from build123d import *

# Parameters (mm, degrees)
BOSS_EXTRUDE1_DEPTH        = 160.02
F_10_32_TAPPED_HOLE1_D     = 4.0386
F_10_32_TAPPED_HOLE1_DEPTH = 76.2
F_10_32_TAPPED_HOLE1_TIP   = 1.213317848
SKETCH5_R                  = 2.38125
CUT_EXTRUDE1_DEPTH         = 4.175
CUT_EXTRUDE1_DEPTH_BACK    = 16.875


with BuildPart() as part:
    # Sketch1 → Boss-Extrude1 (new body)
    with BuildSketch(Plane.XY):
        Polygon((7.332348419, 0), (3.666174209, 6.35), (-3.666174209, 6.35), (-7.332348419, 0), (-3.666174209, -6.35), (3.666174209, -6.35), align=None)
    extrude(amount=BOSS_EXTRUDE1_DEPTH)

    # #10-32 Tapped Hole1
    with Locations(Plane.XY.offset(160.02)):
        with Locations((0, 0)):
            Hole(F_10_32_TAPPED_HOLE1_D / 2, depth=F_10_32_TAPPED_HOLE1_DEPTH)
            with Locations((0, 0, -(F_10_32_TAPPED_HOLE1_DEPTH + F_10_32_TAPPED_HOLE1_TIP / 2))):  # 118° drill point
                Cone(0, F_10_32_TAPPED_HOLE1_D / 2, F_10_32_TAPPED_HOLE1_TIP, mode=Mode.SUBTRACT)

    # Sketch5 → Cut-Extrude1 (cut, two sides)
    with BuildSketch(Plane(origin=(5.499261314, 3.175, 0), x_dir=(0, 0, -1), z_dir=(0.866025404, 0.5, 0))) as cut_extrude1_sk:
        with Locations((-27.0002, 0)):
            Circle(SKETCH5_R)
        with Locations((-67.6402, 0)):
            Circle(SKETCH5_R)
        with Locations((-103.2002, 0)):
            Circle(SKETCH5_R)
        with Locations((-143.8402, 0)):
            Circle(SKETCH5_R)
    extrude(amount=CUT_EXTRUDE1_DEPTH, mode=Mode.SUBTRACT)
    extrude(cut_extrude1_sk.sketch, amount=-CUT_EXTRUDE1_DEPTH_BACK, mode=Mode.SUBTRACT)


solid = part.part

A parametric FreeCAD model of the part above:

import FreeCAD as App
import Part
import Sketcher
from FreeCAD import Vector
Q = App.Units.Quantity

doc = App.newDocument("Part")
body = doc.addObject("PartDesign::Body", "Body")

sketch1 = body.newObject("Sketcher::SketchObject", "Sketch")
sketch1.AttachmentSupport = (doc.getObject("XY_Plane"), [""])
sketch1.MapMode = "FlatFace"
sketch1.addGeometry([
    Part.LineSegment(Vector(7, 0, 0), Vector(4, 6, 0)),
    Part.LineSegment(Vector(4, 6, 0), Vector(-4, 6, 0)),
    Part.LineSegment(Vector(-4, 6, 0), Vector(-7, 0, 0)),
    Part.LineSegment(Vector(-7, 0, 0), Vector(-4, -6, 0)),
    Part.LineSegment(Vector(-4, -6, 0), Vector(4, -6, 0)),
    Part.LineSegment(Vector(4, -6, 0), Vector(7, 0, 0)),
], False)
sketch1.addConstraint([
    Sketcher.Constraint("Coincident", 0, 2, 1, 1),
    Sketcher.Constraint("Coincident", 1, 2, 2, 1),
    Sketcher.Constraint("Coincident", 2, 2, 3, 1),
    Sketcher.Constraint("Coincident", 3, 2, 4, 1),
    Sketcher.Constraint("Coincident", 4, 2, 5, 1),
    Sketcher.Constraint("Coincident", 5, 2, 0, 1),
    Sketcher.Constraint("Horizontal", 1),
    Sketcher.Constraint("Horizontal", 4),
    Sketcher.Constraint("Symmetric", 0, 2, 3, 2, -1, 1),
    Sketcher.Constraint("Symmetric", 2, 2, 5, 2, -1, 1),
    Sketcher.Constraint("PointOnObject", 2, 2, -1),
    Sketcher.Constraint("Parallel", 2, 5),
    Sketcher.Constraint("Vertical", 1, 2, 3, 2),
    Sketcher.Constraint("Angle", 0, Q("120 deg")),
    Sketcher.Constraint("DistanceY", 3, 2, 1, 2, Q("0.5 in")),
    Sketcher.Constraint("DistanceX", 1, 2, 1, 1, Q("7.332348 mm")),
])
pad1 = body.newObject("PartDesign::Pad", "Pad")
pad1.Profile = sketch1
pad1.Length = Q("6.3 in")

sketch2 = body.newObject("Sketcher::SketchObject", "Sketch001")
sketch2.AttachmentSupport = (doc.getObject("XY_Plane"), [""])
sketch2.MapMode = "FlatFace"
sketch2.AttachmentOffset = App.Placement(Vector(0, 0, 6.3 * 25.4), App.Rotation())
sketch2.addGeometry(Part.Circle(Vector(0, 0, 0), Vector(0, 0, 1), 2), False)
sketch2.addConstraint([
    Sketcher.Constraint("Coincident", 0, 3, -1, 1),
    Sketcher.Constraint("Diameter", 0, Q("0.159 in")),
])
doc.recompute()
hole = body.newObject("PartDesign::Hole", "Hole")
hole.Profile = sketch2
hole.ThreadType = "None"
hole.Diameter = Q("0.159 in")
hole.DepthType = "Dimension"
hole.Depth = Q("3 in")
hole.DrillPoint = "Angled"
hole.DrillPointAngle = 118

sketch3 = body.newObject("Sketcher::SketchObject", "Sketch002")
sketch3.Placement = App.Placement(Vector(5.499261, 3.175, 0), App.Rotation(Vector(0, 0, -1), Vector(-0.5, 0.866025404, 0), Vector(0.866025404, 0.5, 0), "ZXY"))
sketch3.addGeometry([
    Part.Circle(Vector(-27, 0, 0), Vector(0, 0, 1), 2.4),
    Part.Circle(Vector(-67.6, 0, 0), Vector(0, 0, 1), 2.4),
    Part.Circle(Vector(-103.2, 0, 0), Vector(0, 0, 1), 2.4),
    Part.Circle(Vector(-143.8, 0, 0), Vector(0, 0, 1), 2.4),
], False)
sketch3.addConstraint([
    Sketcher.Constraint("Equal", 0, 1),
    Sketcher.Constraint("Equal", 1, 2),
    Sketcher.Constraint("Equal", 2, 3),
    Sketcher.Constraint("PointOnObject", 0, 3, -1),
    Sketcher.Constraint("PointOnObject", 1, 3, -1),
    Sketcher.Constraint("PointOnObject", 2, 3, -1),
    Sketcher.Constraint("PointOnObject", 3, 3, -1),
    Sketcher.Constraint("Diameter", 0, Q("0.1875 in")),
    Sketcher.Constraint("DistanceX", 2, 3, 0, 3, Q("3 in")),
    Sketcher.Constraint("DistanceX", 3, 3, 1, 3, Q("3 in")),
    Sketcher.Constraint("DistanceX", 1, 3, 0, 3, Q("1.6 in")),
    Sketcher.Constraint("DistanceX", 0, 3, -1, 1, Q("1.063 in")),
])
pocket1 = body.newObject("PartDesign::Pocket", "Pocket")
pocket1.Profile = sketch3
pocket1.Type = "ThroughAll"
pocket1.Midplane = True

doc.recompute()
